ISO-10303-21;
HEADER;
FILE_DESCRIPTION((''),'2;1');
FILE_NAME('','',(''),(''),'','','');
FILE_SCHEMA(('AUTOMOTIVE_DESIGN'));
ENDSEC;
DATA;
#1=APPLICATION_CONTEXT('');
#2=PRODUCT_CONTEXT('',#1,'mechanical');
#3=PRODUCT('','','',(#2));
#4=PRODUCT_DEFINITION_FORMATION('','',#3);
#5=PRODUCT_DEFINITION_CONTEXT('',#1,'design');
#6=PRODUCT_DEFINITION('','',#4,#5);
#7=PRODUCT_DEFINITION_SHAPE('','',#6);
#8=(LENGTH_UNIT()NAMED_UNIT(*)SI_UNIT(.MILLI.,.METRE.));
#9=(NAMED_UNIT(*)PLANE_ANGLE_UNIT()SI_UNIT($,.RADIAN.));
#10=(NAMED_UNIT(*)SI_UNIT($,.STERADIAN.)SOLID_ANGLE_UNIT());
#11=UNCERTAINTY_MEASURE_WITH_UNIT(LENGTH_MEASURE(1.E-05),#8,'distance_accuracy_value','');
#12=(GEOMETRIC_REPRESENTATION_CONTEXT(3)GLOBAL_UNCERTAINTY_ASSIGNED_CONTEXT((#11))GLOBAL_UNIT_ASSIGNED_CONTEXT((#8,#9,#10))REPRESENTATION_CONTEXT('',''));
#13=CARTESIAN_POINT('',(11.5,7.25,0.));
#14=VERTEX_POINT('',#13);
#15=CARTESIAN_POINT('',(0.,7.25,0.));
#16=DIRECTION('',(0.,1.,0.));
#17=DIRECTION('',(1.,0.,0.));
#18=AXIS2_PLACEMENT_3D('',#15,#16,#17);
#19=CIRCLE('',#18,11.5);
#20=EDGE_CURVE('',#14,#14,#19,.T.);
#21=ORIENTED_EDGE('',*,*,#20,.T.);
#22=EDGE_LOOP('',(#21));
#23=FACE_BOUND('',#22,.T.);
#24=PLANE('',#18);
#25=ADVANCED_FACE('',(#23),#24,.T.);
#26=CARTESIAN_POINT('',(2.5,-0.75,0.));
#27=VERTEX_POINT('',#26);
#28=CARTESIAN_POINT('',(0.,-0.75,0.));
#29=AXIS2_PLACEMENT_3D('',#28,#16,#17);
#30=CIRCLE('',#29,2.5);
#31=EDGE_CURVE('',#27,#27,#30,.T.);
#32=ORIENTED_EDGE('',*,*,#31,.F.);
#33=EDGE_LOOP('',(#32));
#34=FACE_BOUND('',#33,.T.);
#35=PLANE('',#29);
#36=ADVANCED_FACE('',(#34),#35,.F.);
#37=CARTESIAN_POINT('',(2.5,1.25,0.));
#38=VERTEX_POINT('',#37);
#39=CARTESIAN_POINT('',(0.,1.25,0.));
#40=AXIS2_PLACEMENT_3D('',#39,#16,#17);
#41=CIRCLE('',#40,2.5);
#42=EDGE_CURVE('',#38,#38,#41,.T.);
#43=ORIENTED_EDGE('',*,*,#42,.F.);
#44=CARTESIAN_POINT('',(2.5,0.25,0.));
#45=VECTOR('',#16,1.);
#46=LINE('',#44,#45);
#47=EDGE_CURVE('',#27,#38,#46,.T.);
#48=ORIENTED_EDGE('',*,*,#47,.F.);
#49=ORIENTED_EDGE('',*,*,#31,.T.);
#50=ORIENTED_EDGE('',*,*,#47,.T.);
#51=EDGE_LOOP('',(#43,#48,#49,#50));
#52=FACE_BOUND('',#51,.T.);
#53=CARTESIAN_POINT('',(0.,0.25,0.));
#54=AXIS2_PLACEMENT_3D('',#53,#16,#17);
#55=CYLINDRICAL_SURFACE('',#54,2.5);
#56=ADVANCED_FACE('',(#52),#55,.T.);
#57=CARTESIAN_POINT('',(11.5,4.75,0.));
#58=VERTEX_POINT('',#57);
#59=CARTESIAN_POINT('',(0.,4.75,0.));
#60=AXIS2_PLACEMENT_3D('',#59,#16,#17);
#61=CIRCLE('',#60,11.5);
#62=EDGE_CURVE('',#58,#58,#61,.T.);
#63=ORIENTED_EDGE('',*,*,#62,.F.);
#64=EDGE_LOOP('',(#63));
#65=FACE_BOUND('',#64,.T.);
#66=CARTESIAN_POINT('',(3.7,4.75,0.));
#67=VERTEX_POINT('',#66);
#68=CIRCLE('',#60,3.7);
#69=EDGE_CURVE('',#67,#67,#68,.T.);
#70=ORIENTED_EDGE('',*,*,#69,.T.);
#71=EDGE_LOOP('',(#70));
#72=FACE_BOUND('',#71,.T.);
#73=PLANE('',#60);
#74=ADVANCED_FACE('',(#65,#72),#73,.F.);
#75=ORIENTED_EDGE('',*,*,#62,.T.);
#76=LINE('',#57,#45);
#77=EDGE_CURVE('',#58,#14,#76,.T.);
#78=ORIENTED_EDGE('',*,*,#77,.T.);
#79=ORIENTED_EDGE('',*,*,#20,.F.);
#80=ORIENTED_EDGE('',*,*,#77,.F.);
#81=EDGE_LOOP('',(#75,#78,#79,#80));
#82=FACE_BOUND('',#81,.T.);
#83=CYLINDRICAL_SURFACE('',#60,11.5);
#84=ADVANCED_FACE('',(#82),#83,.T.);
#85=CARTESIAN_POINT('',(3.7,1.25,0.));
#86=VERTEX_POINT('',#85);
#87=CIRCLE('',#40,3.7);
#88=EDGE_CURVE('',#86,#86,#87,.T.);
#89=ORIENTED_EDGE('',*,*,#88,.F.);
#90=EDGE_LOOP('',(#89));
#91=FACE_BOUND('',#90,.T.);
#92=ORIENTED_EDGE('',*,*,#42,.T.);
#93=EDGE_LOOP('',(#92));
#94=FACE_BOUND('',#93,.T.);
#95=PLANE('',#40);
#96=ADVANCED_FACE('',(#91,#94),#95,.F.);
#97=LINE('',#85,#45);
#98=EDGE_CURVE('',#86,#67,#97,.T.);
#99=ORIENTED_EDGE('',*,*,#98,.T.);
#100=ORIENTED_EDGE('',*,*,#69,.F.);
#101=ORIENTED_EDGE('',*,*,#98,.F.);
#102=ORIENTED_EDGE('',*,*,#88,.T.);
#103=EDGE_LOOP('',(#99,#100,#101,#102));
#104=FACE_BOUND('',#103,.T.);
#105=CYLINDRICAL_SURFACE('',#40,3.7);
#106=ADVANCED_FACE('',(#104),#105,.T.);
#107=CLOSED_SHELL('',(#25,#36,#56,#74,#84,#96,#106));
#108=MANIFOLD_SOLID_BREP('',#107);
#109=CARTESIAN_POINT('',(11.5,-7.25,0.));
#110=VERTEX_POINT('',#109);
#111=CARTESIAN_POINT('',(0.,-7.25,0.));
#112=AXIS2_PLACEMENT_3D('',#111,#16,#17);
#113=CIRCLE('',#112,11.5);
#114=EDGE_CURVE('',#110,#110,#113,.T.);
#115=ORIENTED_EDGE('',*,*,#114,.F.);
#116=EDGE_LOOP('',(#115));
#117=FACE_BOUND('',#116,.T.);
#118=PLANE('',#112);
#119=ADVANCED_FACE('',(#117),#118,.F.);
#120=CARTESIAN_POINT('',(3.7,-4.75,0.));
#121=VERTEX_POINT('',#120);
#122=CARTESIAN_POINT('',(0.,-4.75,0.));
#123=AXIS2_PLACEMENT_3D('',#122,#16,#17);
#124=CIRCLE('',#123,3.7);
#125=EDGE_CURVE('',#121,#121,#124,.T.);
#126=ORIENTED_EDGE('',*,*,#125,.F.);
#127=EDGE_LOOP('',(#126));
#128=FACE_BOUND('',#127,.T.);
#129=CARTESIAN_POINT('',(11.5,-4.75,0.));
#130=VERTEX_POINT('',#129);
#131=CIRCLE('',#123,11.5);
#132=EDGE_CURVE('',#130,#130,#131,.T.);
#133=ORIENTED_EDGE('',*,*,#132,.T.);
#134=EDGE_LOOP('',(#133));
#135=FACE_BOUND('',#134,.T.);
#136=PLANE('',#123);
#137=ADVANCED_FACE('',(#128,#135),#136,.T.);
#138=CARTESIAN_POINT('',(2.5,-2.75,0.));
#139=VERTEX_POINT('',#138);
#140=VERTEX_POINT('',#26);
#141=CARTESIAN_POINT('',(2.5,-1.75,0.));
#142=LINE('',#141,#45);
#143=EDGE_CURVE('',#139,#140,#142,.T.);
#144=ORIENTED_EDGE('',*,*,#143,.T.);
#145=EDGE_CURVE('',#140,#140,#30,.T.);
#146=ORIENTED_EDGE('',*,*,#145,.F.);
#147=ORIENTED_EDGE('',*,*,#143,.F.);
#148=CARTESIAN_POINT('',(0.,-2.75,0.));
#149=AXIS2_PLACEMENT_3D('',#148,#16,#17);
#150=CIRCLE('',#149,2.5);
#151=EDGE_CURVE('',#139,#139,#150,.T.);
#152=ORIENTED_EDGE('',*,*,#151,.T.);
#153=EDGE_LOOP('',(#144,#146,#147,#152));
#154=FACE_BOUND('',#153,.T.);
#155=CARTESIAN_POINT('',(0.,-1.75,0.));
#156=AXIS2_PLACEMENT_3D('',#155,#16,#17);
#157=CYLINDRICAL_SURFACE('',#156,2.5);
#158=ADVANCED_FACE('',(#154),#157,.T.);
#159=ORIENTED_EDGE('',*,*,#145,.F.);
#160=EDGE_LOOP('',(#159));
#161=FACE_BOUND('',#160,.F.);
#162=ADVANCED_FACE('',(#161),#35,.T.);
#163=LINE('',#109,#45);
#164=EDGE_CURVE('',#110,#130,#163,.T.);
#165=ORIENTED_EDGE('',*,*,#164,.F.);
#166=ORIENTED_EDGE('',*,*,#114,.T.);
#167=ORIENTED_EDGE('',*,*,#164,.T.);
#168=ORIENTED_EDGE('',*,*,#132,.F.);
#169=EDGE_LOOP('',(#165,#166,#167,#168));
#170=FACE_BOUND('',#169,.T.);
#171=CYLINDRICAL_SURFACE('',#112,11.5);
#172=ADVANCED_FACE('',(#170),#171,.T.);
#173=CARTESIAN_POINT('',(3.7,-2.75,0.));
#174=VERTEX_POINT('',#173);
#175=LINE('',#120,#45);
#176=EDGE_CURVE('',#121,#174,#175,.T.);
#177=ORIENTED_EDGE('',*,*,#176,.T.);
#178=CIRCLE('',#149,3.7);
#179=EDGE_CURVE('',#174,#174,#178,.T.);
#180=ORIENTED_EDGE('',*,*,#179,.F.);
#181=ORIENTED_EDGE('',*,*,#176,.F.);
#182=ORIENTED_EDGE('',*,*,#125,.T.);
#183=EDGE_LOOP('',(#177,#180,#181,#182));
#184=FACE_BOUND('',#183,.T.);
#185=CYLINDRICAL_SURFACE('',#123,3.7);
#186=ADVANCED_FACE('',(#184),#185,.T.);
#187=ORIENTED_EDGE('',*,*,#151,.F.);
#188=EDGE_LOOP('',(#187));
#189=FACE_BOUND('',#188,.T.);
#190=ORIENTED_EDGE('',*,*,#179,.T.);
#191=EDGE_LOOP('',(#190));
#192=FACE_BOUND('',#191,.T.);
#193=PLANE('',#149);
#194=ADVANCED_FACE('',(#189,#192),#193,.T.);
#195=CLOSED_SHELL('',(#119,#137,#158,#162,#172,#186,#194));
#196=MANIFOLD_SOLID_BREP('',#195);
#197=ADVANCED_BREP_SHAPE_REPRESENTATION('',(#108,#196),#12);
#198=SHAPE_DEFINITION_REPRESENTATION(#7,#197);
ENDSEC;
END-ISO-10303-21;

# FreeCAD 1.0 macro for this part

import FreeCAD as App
import Part
import Sketcher

doc = App.newDocument("Part")
body = doc.addObject("PartDesign::Body", "Body")

# Sketch on XY plane
sketch1 = body.newObject("Sketcher::SketchObject", "Sketch")
sketch1.AttachmentSupport = (doc.getObject("XY_Plane"), [""])
sketch1.MapMode = "FlatFace"
sketch1.addGeometry([
    Part.LineSegment(App.Vector(0, -0.8, 0), App.Vector(2.5, -0.8, 0)),  # 0
    Part.LineSegment(App.Vector(2.5, -0.8, 0), App.Vector(2.5, 1.2, 0)),  # 1
    Part.LineSegment(App.Vector(2.5, 1.2, 0), App.Vector(3.7, 1.2, 0)),  # 2
    Part.LineSegment(App.Vector(3.7, 1.2, 0), App.Vector(3.7, 4.8, 0)),  # 3
    Part.LineSegment(App.Vector(3.7, 4.8, 0), App.Vector(11.5, 4.8, 0)),  # 4
    Part.LineSegment(App.Vector(11.5, 4.8, 0), App.Vector(11.5, 7.2, 0)),  # 5
    Part.LineSegment(App.Vector(11.5, 7.2, 0), App.Vector(0, 7.2, 0)),  # 6
    Part.LineSegment(App.Vector(0, 7.2, 0), App.Vector(0, -0.8, 0)),  # 7
], False)
sketch1.addConstraint([
    Sketcher.Constraint("Coincident", 0, 2, 1, 1),
    Sketcher.Constraint("Coincident", 1, 2, 2, 1),
    Sketcher.Constraint("Coincident", 2, 2, 3, 1),
    Sketcher.Constraint("Coincident", 3, 2, 4, 1),
    Sketcher.Constraint("Coincident", 4, 2, 5, 1),
    Sketcher.Constraint("Coincident", 5, 2, 6, 1),
    Sketcher.Constraint("Coincident", 6, 2, 7, 1),
    Sketcher.Constraint("Coincident", 7, 2, 0, 1),
    Sketcher.Constraint("Horizontal", 0),
    Sketcher.Constraint("Vertical", 1),
    Sketcher.Constraint("Horizontal", 2),
    Sketcher.Constraint("Vertical", 3),
    Sketcher.Constraint("Horizontal", 4),
    Sketcher.Constraint("Vertical", 5),
    Sketcher.Constraint("Horizontal", 6),
    Sketcher.Constraint("Vertical", 7),
    Sketcher.Constraint("PointOnObject", 6, 2, -2),
    Sketcher.Constraint("Equal", 0, 5),
    Sketcher.Constraint("DistanceY", 1, 1, 1, 2, 2.0),
    Sketcher.Constraint("DistanceY", 7, 2, 7, 1, 8.0),
    Sketcher.Constraint("DistanceX", 0, 1, 0, 2, 2.5),
    Sketcher.Constraint("DistanceX", 2, 1, 2, 2, 1.2),
    Sketcher.Constraint("DistanceX", 4, 1, 4, 2, 7.8),
    Sketcher.Constraint("DistanceY", 0, 2, -1, 1, 0.75),
])
revolution = body.newObject("PartDesign::Revolution", "Revolution")
revolution.Profile = sketch1
revolution.ReferenceAxis = (sketch1, ["V_Axis"])
revolution.Angle = 360
body2 = doc.addObject("PartDesign::Body", "Body001")

# Sketch on XY plane
sketch2 = body2.newObject("Sketcher::SketchObject", "Sketch001")
sketch2.AttachmentSupport = (doc.getObject("XY_Plane001"), [""])
sketch2.MapMode = "FlatFace"
sketch2.addGeometry([
    Part.LineSegment(App.Vector(0, -0.8, 0), App.Vector(0, -7.2, 0)),  # 0
    Part.LineSegment(App.Vector(0, -7.2, 0), App.Vector(11.5, -7.2, 0)),  # 1
    Part.LineSegment(App.Vector(11.5, -7.2, 0), App.Vector(11.5, -4.8, 0)),  # 2
    Part.LineSegment(App.Vector(11.5, -4.8, 0), App.Vector(3.7, -4.8, 0)),  # 3
    Part.LineSegment(App.Vector(3.7, -4.8, 0), App.Vector(3.7, -2.8, 0)),  # 4
    Part.LineSegment(App.Vector(3.7, -2.8, 0), App.Vector(2.5, -2.8, 0)),  # 5
    Part.LineSegment(App.Vector(2.5, -2.8, 0), App.Vector(2.5, -0.8, 0)),  # 6
    Part.LineSegment(App.Vector(2.5, -0.8, 0), App.Vector(0, -0.8, 0)),  # 7
], False)
sketch2.addConstraint([
    Sketcher.Constraint("Coincident", 0, 2, 1, 1),
    Sketcher.Constraint("Coincident", 1, 2, 2, 1),
    Sketcher.Constraint("Coincident", 2, 2, 3, 1),
    Sketcher.Constraint("Coincident", 3, 2, 4, 1),
    Sketcher.Constraint("Coincident", 4, 2, 5, 1),
    Sketcher.Constraint("Coincident", 5, 2, 6, 1),
    Sketcher.Constraint("Coincident", 6, 2, 7, 1),
    Sketcher.Constraint("Coincident", 7, 2, 0, 1),
    Sketcher.Constraint("Vertical", 0),
    Sketcher.Constraint("Horizontal", 1),
    Sketcher.Constraint("Vertical", 2),
    Sketcher.Constraint("Horizontal", 3),
    Sketcher.Constraint("Vertical", 4),
    Sketcher.Constraint("Horizontal", 5),
    Sketcher.Constraint("Vertical", 6),
    Sketcher.Constraint("Horizontal", 7),
    Sketcher.Constraint("PointOnObject", 0, 2, -2),
    Sketcher.Constraint("Equal", 7, 2),
    Sketcher.Constraint("Equal", 4, 6),
    Sketcher.Constraint("DistanceY", 4, 1, 4, 2, 2.0),
    Sketcher.Constraint("DistanceX", 1, 1, 1, 2, 11.5),
    Sketcher.Constraint("DistanceX", 3, 2, 3, 1, 7.8),
    Sketcher.Constraint("DistanceX", 5, 2, 5, 1, 1.2),
    Sketcher.Constraint("DistanceY", 0, 2, -1, 1, 7.25),
])
revolution2 = body2.newObject("PartDesign::Revolution", "Revolution001")
revolution2.Profile = sketch2
revolution2.ReferenceAxis = (sketch2, ["V_Axis"])
revolution2.Angle = 360

doc.recompute()
